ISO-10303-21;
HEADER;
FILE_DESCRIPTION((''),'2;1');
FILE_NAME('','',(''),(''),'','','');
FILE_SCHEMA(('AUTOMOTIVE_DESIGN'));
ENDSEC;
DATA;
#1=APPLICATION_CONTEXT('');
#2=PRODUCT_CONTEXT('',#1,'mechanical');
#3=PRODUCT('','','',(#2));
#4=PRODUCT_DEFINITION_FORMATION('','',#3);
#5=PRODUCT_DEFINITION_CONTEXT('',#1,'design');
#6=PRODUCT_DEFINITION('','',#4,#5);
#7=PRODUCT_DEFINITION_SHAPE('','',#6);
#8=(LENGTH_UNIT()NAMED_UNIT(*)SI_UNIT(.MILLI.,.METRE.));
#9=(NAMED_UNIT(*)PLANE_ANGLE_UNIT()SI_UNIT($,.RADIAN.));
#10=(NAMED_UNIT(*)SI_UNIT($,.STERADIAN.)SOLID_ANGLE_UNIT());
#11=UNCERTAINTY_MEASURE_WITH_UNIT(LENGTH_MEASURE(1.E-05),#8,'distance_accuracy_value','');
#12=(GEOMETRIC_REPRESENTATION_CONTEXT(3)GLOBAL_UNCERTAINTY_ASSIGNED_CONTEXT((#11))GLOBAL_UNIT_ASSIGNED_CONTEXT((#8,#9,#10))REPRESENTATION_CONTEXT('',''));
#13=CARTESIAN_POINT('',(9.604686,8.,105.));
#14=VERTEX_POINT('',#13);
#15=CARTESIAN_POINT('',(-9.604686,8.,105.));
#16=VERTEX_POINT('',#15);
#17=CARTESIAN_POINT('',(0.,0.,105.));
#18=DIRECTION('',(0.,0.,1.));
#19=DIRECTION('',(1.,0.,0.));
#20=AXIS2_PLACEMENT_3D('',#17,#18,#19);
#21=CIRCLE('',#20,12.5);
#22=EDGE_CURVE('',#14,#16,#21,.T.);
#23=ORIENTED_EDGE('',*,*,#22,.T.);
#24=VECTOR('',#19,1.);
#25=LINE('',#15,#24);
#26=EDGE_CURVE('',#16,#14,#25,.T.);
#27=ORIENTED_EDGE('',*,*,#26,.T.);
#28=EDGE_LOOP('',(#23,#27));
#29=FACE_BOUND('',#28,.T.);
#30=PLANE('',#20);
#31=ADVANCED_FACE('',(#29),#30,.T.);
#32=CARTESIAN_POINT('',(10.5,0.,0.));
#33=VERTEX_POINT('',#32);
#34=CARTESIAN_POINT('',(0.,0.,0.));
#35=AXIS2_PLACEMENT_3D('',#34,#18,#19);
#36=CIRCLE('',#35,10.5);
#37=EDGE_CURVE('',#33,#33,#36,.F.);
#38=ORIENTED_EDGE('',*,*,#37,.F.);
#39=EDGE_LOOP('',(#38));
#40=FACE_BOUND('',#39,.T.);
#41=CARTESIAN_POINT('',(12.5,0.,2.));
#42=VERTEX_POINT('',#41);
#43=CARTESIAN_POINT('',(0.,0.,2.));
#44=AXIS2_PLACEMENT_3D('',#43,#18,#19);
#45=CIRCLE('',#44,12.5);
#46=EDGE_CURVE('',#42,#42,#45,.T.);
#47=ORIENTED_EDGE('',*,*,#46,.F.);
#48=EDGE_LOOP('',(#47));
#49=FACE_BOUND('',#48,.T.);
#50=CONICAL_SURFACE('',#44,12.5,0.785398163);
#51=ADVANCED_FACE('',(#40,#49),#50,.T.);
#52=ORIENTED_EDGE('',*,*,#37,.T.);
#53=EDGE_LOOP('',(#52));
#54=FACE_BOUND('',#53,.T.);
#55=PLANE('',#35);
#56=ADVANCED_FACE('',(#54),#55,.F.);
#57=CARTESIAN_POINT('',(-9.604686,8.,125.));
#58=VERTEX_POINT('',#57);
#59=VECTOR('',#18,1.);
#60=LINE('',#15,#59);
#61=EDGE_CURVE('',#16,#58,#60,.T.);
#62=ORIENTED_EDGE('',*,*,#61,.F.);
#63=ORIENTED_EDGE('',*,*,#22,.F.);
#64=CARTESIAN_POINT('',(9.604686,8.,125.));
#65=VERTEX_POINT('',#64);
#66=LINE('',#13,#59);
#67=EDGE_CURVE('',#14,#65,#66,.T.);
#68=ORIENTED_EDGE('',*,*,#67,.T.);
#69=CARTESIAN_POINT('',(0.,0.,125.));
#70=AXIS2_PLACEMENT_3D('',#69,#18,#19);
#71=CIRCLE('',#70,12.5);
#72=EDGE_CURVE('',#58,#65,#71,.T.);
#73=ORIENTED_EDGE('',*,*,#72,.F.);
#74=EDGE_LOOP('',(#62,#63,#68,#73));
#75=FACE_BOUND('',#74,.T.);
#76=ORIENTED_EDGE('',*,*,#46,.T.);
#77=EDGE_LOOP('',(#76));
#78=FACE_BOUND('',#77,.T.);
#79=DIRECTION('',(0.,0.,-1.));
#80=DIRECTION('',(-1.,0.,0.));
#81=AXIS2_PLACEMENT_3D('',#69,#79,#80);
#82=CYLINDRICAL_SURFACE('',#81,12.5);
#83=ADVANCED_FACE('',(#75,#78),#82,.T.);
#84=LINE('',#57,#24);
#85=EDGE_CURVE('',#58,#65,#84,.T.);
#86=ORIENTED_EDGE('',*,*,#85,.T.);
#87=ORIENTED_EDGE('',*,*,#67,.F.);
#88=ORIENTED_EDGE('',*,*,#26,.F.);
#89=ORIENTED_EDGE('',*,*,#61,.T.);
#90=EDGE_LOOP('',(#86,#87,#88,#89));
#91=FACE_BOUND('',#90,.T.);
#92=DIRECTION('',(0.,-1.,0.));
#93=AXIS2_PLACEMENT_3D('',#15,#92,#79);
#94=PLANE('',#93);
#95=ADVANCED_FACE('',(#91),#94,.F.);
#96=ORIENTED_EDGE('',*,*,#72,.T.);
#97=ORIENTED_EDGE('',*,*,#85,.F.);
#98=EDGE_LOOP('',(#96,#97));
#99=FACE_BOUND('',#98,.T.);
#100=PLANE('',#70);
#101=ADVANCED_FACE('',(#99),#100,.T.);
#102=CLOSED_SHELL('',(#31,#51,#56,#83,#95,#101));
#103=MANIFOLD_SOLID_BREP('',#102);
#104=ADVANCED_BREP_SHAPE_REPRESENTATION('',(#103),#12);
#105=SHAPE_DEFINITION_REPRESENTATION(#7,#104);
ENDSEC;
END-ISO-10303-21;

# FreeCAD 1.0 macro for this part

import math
import FreeCAD as App
import Part
import Sketcher

V = App.Vector
Q = App.Units.Quantity


def edges_at(feature, points):
    """Names of the edges that pass closest to the given points."""
    edges = feature.Shape.Edges
    near = lambda p: min(range(len(edges)), key=lambda i: edges[i].distToShape(Part.Vertex(*p))[0])
    return sorted({f"Edge{near(p) + 1}" for p in points})

doc = App.newDocument("Part")
body = doc.addObject("PartDesign::Body", "Body")

sketch1 = doc.addObject("Sketcher::SketchObject", "Sketch")
body.addObject(sketch1)
sketch1.AttachmentSupport = (doc.XY_Plane, [""])
sketch1.MapMode = "FlatFace"
sketch1.addGeometry(Part.Circle(V(0, 0, 0), V(0, 0, 1), 12), False)
sketch1.addConstraint([
    Sketcher.Constraint("Coincident", 0, 3, -1, 1),
    Sketcher.Constraint("Diameter", 0, Q("25 mm")),
])
pad1 = doc.addObject("PartDesign::Pad", "Pad")
body.addObject(pad1)
pad1.Profile = sketch1
pad1.Length = 125

sketch2 = doc.addObject("Sketcher::SketchObject", "Sketch001")
body.addObject(sketch2)
sketch2.AttachmentSupport = (doc.XY_Plane, [""])
sketch2.MapMode = "FlatFace"
sketch2.AttachmentOffset = App.Placement(V(0, 0, 105), App.Rotation())
sketch2.addGeometry([
    Part.LineSegment(V(-10, 8, 0), V(10, 8, 0)),
    Part.ArcOfCircle(Part.Circle(V(0, 0, 0), V(0, 0, 1), 12), math.radians(40), math.radians(140)),
], False)
sketch2.addConstraint([
    Sketcher.Constraint("Coincident", 0, 1, 1, 2),
    Sketcher.Constraint("Coincident", 1, 1, 0, 2),
    Sketcher.Constraint("Horizontal", 0),
    Sketcher.Constraint("Coincident", 1, 3, -1, 1),
    Sketcher.Constraint("Radius", 1, Q("12.5 mm")),
    Sketcher.Constraint("DistanceY", -1, 1, 0, 1, Q("8 mm")),
])
pocket1 = doc.addObject("PartDesign::Pocket", "Pocket")
body.addObject(pocket1)
pocket1.Profile = sketch2
pocket1.Length = 20
pocket1.Reversed = True
doc.recompute()

chamfer = doc.addObject("PartDesign::Chamfer", "Chamfer")
body.addObject(chamfer)
chamfer.Base = (pocket1, edges_at(pocket1, [(-12.5, 0, 0)]))
chamfer.Size = 2

doc.recompute()
